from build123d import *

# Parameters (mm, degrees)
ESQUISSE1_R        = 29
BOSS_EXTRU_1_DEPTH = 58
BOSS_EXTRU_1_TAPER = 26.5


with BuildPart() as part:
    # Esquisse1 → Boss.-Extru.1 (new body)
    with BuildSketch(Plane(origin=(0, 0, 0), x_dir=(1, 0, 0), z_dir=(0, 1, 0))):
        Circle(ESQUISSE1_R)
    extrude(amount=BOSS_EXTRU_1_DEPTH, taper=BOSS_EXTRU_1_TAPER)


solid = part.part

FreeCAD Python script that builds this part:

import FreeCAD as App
import Part
import Sketcher

doc = App.newDocument("Part")
body = doc.addObject("PartDesign::Body", "Body")

# Sketch on XZ plane
sketch1 = body.newObject("Sketcher::SketchObject", "Sketch")
sketch1.AttachmentSupport = (doc.getObject("XZ_Plane"), [""])
sketch1.MapMode = "FlatFace"
sketch1.addGeometry(Part.Circle(App.Vector(0, 0, 0), App.Vector(0, 0, 1), 29), False)
sketch1.addConstraint([
    Sketcher.Constraint("Coincident", 0, 3, -1, 1),
    Sketcher.Constraint("Diameter", 0, 58.0),
])
pad1 = body.newObject("PartDesign::Pad", "Pad")
pad1.Profile = sketch1
pad1.Length = 58
pad1.Reversed = True
pad1.TaperAngle = -26.5

doc.recompute()
